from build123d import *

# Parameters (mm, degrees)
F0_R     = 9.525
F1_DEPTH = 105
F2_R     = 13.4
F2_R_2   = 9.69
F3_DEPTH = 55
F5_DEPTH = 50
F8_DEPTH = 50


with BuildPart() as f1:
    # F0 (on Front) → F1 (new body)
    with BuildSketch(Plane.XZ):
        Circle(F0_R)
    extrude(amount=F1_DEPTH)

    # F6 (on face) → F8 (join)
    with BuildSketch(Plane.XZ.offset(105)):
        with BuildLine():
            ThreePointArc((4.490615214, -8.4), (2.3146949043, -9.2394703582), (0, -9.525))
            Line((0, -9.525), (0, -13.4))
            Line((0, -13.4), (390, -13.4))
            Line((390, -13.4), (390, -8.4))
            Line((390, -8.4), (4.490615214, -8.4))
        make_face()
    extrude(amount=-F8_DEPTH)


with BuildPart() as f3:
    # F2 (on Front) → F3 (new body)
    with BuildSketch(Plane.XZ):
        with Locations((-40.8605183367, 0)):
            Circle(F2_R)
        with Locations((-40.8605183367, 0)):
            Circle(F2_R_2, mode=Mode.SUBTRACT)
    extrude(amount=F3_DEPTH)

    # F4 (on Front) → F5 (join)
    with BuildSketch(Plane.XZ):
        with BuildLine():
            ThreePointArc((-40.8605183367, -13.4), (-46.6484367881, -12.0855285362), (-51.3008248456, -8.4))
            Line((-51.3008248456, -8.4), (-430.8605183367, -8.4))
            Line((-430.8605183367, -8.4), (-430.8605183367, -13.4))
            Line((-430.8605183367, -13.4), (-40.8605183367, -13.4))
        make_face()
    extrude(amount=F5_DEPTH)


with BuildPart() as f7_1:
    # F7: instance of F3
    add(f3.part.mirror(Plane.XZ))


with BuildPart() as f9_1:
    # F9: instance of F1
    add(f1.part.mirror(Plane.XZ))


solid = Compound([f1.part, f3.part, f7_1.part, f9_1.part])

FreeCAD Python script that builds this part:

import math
import FreeCAD as App
import Part
import Sketcher
Q = App.Units.Quantity

doc = App.newDocument("Part")
body = doc.addObject("PartDesign::Body", "Body")

sketch1 = body.newObject("Sketcher::SketchObject", "Sketch")
sketch1.AttachmentSupport = (doc.getObject("XZ_Plane"), [""])
sketch1.MapMode = "FlatFace"
sketch1.addGeometry(Part.Circle(App.Vector(0, 0, 0), App.Vector(0, 0, 1), 10), False)
sketch1.addConstraint(Sketcher.Constraint("Coincident", 0, 3, -1, 1))
sketch1.addConstraint(Sketcher.Constraint("Diameter", 0, Q("19.05 mm")))
pad1 = body.newObject("PartDesign::Pad", "Pad")
pad1.Profile = sketch1
pad1.Length = 105

sketch2 = body.newObject("Sketcher::SketchObject", "Sketch001")
sketch2.AttachmentSupport = (doc.getObject("XZ_Plane"), [""])
sketch2.MapMode = "FlatFace"
sketch2.AttachmentOffset = App.Placement(App.Vector(0, 0, 105), App.Rotation())
sketch2.addGeometry(Part.ArcOfCircle(Part.Circle(App.Vector(0, 0, 0), App.Vector(0, 0, 1), 9.5), math.radians(-90), math.radians(-62)), False)
sketch2.addGeometry(Part.LineSegment(App.Vector(0, -9.5, 0), App.Vector(0, -13.4, 0)), False)
sketch2.addGeometry(Part.LineSegment(App.Vector(0, -13.4, 0), App.Vector(390, -13.4, 0)), False)
sketch2.addGeometry(Part.LineSegment(App.Vector(390, -13.4, 0), App.Vector(390, -8.4, 0)), False)
sketch2.addGeometry(Part.LineSegment(App.Vector(390, -8.4, 0), App.Vector(4.5, -8.4, 0)), False)
sketch2.addConstraint(Sketcher.Constraint("Coincident", 0, 1, 1, 1))
sketch2.addConstraint(Sketcher.Constraint("Coincident", 1, 2, 2, 1))
sketch2.addConstraint(Sketcher.Constraint("Coincident", 2, 2, 3, 1))
sketch2.addConstraint(Sketcher.Constraint("Coincident", 3, 2, 4, 1))
sketch2.addConstraint(Sketcher.Constraint("Coincident", 4, 2, 0, 2))
sketch2.addConstraint(Sketcher.Constraint("Vertical", 1))
sketch2.addConstraint(Sketcher.Constraint("Horizontal", 2))
sketch2.addConstraint(Sketcher.Constraint("Vertical", 3))
sketch2.addConstraint(Sketcher.Constraint("Horizontal", 4))
sketch2.addConstraint(Sketcher.Constraint("Coincident", 0, 3, -1, 1))
sketch2.addConstraint(Sketcher.Constraint("PointOnObject", 0, 1, -2))
sketch2.addConstraint(Sketcher.Constraint("DistanceX", 2, 1, 2, 2, Q("390 mm")))
sketch2.addConstraint(Sketcher.Constraint("DistanceY", 3, 1, 3, 2, Q("5 mm")))
sketch2.addConstraint(Sketcher.Constraint("Radius", 0, Q("9.525 mm")))
sketch2.addConstraint(Sketcher.Constraint("DistanceY", 1, 2, -1, 1, Q("13.4 mm")))
pad2 = body.newObject("PartDesign::Pad", "Pad001")
pad2.Profile = sketch2
pad2.Length = 50
pad2.Reversed = True
body2 = doc.addObject("PartDesign::Body", "Body001")

sketch3 = body2.newObject("Sketcher::SketchObject", "Sketch002")
sketch3.AttachmentSupport = (doc.getObject("XZ_Plane001"), [""])
sketch3.MapMode = "FlatFace"
sketch3.addGeometry(Part.Circle(App.Vector(-41, 0, 0), App.Vector(0, 0, 1), 13), False)
sketch3.addGeometry(Part.Circle(App.Vector(-41, 0, 0), App.Vector(0, 0, 1), 10), False)
sketch3.addConstraint(Sketcher.Constraint("Coincident", 1, 3, 0, 3))
sketch3.addConstraint(Sketcher.Constraint("PointOnObject", 0, 3, -1))
sketch3.addConstraint(Sketcher.Constraint("Diameter", 0, Q("26.8 mm")))
sketch3.addConstraint(Sketcher.Constraint("Diameter", 1, Q("19.38 mm")))
sketch3.addConstraint(Sketcher.Constraint("DistanceX", 0, 3, -1, 1, Q("40.860518 mm")))
pad3 = body2.newObject("PartDesign::Pad", "Pad002")
pad3.Profile = sketch3
pad3.Length = 55

sketch4 = body2.newObject("Sketcher::SketchObject", "Sketch003")
sketch4.AttachmentSupport = (doc.getObject("XZ_Plane001"), [""])
sketch4.MapMode = "FlatFace"
sketch4.addGeometry(Part.ArcOfCircle(Part.Circle(App.Vector(-41, 0, 0), App.Vector(0, 0, 1), 13), math.radians(-141), math.radians(-90)), False)
sketch4.addGeometry(Part.LineSegment(App.Vector(-51, -8, 0), App.Vector(-431, -8, 0)), False)
sketch4.addGeometry(Part.LineSegment(App.Vector(-431, -8, 0), App.Vector(-431, -13, 0)), False)
sketch4.addGeometry(Part.LineSegment(App.Vector(-431, -13, 0), App.Vector(-41, -13, 0)), False)
sketch4.addConstraint(Sketcher.Constraint("Coincident", 0, 1, 1, 1))
sketch4.addConstraint(Sketcher.Constraint("Coincident", 1, 2, 2, 1))
sketch4.addConstraint(Sketcher.Constraint("Coincident", 2, 2, 3, 1))
sketch4.addConstraint(Sketcher.Constraint("Tangent", 3, 2, 0, 2))
sketch4.addConstraint(Sketcher.Constraint("Horizontal", 1))
sketch4.addConstraint(Sketcher.Constraint("Vertical", 2))
sketch4.addConstraint(Sketcher.Constraint("Horizontal", 3))
sketch4.addConstraint(Sketcher.Constraint("PointOnObject", 0, 3, -1))
sketch4.addConstraint(Sketcher.Constraint("Radius", 0, Q("13.4 mm")))
sketch4.addConstraint(Sketcher.Constraint("DistanceX", 3, 1, 3, 2, Q("390 mm")))
sketch4.addConstraint(Sketcher.Constraint("DistanceY", 2, 2, 2, 1, Q("5 mm")))
sketch4.addConstraint(Sketcher.Constraint("DistanceX", 0, 3, -1, 1, Q("40.860518 mm")))
pad4 = body2.newObject("PartDesign::Pad", "Pad003")
pad4.Profile = sketch4
pad4.Length = 50
body3 = doc.addObject("PartDesign::Body", "Body002")
doc.recompute()

mirroring = doc.addObject("Part::Mirroring", "Mirroring")
mirroring.Source = body2
mirroring.Base = App.Vector(0, 0, 0)
mirroring.Normal = App.Vector(0, -1, 0)
body3.BaseFeature = mirroring
doc.recompute()
body4 = doc.addObject("PartDesign::Body", "Body003")
doc.recompute()

mirroring2 = doc.addObject("Part::Mirroring", "Mirroring001")
mirroring2.Source = body
mirroring2.Base = App.Vector(0, 0, 0)
mirroring2.Normal = App.Vector(0, -1, 0)
body4.BaseFeature = mirroring2
doc.recompute()
mirroring.Visibility = False
mirroring2.Visibility = False

doc.recompute()
